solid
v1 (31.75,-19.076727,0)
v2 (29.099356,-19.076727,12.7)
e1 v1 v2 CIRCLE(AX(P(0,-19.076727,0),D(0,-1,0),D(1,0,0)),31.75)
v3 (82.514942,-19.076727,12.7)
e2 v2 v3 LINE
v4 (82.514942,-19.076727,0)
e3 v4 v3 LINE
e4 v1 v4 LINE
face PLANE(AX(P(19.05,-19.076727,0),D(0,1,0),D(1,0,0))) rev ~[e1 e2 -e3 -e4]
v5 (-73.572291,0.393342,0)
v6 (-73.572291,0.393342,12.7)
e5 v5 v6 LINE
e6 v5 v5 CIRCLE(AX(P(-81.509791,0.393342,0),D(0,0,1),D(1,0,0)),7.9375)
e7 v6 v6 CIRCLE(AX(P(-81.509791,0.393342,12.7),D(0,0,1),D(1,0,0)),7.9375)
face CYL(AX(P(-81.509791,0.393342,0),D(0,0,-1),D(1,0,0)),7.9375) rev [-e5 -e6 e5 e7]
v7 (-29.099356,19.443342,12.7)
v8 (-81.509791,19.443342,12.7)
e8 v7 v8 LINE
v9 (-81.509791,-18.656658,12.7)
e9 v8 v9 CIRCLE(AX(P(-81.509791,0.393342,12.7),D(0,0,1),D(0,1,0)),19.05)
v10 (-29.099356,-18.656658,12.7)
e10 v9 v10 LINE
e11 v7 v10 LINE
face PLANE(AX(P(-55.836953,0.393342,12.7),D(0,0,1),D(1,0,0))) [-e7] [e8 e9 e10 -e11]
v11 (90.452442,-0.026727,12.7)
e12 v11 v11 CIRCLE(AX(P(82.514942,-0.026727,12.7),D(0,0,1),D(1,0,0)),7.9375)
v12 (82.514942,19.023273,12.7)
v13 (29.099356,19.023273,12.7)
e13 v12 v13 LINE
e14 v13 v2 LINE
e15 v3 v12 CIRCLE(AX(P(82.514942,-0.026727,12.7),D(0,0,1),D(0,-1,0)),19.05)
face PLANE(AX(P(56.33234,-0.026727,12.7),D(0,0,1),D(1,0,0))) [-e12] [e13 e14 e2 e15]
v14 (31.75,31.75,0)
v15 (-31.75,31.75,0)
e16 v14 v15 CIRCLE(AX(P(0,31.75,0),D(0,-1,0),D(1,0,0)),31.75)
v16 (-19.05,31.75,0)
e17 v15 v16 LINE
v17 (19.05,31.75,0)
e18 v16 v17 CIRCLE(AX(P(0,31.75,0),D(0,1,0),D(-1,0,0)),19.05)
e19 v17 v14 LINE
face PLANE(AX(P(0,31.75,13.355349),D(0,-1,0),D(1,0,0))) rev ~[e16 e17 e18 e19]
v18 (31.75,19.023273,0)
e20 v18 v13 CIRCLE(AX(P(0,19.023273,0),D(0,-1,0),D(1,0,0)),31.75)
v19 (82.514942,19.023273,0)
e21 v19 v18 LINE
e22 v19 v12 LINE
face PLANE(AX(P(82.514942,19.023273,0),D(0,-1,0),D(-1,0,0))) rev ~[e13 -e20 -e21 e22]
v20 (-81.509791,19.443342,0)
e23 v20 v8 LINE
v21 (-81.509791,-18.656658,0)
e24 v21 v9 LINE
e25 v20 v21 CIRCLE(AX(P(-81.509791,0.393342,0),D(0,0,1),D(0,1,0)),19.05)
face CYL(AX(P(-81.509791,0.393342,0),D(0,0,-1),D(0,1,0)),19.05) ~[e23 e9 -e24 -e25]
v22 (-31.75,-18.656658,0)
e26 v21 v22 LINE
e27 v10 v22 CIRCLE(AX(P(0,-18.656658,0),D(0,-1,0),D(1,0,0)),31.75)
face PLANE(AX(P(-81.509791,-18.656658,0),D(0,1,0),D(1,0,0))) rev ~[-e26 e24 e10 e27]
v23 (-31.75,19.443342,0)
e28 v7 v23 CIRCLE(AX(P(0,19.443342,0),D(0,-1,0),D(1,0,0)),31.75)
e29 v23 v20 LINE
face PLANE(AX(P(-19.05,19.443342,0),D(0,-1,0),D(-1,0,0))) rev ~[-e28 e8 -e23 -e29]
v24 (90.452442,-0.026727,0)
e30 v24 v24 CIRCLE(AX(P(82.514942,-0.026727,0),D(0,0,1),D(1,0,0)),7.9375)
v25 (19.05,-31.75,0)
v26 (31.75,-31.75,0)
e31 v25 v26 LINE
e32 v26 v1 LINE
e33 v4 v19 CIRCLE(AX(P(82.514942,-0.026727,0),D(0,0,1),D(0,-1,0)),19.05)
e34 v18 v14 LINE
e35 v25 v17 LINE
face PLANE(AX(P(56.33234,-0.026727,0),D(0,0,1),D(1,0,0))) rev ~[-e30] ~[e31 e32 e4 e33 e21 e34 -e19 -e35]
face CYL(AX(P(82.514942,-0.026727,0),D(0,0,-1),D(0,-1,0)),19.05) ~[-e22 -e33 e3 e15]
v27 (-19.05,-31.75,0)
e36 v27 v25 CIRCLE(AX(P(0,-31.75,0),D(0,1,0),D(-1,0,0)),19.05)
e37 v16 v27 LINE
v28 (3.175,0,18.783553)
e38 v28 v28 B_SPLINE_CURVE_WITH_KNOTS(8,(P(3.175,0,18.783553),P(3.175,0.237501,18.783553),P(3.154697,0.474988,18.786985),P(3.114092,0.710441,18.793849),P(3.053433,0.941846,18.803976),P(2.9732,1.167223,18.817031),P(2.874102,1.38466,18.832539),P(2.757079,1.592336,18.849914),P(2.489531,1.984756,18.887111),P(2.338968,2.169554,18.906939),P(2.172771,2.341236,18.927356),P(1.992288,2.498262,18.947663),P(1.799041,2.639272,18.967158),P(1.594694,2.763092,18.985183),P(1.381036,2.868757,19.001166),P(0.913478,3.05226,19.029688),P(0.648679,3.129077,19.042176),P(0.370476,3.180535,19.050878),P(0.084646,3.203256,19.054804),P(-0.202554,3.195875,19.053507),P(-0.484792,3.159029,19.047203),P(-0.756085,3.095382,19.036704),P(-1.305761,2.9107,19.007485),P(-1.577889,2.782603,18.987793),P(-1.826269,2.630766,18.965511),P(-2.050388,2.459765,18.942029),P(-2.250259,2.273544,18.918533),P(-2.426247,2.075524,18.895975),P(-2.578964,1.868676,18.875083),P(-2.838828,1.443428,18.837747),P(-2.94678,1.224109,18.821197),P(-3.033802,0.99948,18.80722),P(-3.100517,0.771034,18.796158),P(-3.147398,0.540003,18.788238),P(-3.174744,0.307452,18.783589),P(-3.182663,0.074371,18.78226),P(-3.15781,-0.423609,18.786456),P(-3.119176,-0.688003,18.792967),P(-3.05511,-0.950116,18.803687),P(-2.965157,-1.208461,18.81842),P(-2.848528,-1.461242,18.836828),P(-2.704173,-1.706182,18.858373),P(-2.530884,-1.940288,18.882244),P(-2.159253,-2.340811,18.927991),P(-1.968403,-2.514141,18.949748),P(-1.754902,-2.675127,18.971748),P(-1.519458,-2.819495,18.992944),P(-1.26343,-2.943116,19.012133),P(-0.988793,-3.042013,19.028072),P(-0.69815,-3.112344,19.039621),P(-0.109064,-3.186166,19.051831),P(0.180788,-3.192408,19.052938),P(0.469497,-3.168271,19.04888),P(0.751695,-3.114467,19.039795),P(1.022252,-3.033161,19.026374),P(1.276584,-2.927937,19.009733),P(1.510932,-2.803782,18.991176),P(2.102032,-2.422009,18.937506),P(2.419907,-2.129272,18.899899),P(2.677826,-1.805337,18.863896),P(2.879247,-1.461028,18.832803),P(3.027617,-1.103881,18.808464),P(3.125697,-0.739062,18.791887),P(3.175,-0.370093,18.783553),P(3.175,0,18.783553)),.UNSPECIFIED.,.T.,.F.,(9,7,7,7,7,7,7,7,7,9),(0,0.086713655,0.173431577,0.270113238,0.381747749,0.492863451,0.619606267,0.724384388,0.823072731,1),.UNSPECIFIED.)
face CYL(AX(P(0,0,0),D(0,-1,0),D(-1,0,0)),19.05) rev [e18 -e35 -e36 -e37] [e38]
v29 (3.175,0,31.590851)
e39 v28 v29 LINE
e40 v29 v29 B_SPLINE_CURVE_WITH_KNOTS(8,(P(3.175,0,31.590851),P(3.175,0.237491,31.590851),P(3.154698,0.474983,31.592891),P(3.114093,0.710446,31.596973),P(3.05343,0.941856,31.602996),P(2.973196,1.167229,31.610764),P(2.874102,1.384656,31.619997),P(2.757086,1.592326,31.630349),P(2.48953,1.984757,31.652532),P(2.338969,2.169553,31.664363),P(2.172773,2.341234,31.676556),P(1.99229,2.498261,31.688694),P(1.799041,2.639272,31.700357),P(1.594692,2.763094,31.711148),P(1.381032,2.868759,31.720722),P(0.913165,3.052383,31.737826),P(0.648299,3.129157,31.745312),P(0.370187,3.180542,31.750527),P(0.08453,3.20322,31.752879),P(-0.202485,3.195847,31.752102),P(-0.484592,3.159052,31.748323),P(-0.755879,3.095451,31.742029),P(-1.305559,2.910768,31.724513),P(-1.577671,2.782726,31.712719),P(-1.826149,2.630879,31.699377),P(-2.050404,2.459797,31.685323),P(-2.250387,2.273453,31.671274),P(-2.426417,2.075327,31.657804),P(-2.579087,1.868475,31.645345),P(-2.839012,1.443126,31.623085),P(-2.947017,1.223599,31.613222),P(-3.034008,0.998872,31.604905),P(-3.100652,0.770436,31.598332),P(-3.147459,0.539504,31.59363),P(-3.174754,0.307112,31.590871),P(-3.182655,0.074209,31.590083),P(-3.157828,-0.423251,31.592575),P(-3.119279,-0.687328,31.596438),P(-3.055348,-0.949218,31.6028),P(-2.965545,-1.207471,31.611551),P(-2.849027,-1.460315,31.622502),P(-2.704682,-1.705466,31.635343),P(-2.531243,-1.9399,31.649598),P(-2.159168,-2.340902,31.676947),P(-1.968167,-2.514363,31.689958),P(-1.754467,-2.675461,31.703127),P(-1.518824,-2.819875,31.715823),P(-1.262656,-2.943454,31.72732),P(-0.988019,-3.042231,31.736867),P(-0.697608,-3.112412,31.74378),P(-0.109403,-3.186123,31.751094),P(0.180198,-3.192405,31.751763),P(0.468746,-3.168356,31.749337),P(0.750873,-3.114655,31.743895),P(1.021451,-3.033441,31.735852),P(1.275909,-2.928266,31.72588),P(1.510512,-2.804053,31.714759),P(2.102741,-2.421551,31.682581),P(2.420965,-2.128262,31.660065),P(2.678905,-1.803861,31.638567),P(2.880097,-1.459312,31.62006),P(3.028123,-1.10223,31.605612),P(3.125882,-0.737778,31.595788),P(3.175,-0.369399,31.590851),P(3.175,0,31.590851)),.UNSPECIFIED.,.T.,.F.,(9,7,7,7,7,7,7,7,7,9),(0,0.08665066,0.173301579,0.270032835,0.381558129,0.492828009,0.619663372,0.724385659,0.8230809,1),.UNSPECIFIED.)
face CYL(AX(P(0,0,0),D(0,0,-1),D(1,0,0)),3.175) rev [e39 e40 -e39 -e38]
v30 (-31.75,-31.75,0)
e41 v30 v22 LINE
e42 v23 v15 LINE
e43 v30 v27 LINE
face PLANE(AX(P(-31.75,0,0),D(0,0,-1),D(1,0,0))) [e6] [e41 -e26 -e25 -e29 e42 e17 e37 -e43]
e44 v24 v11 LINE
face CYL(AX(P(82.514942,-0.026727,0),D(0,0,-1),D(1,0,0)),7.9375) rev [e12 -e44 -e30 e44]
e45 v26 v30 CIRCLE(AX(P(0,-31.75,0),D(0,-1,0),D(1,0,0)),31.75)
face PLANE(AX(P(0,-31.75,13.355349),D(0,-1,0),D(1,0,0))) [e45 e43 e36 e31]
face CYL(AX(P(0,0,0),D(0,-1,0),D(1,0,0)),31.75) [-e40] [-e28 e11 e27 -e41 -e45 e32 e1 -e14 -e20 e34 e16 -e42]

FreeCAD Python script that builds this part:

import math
import FreeCAD as App
import Part
import Sketcher

V = App.Vector
Q = App.Units.Quantity

doc = App.newDocument("Part")
body = doc.addObject("PartDesign::Body", "Body")

sketch1 = body.newObject("Sketcher::SketchObject", "Sketch")
sketch1.AttachmentSupport = (doc.getObject("XZ_Plane"), [""])
sketch1.MapMode = "FlatFace"
sketch1.addGeometry([
    Part.LineSegment(V(-32, 0, 0), V(-19, 0, 0)),
    Part.ArcOfCircle(Part.Circle(V(0, 0, 0), V(0, 0, 1), 19), math.radians(0), math.radians(180)),
    Part.LineSegment(V(19, 0, 0), V(32, 0, 0)),
    Part.ArcOfCircle(Part.Circle(V(0, 0, 0), V(0, 0, 1), 32), math.radians(0), math.radians(180)),
], False)
sketch1.addConstraint([
    Sketcher.Constraint("Coincident", 0, 2, 1, 2),
    Sketcher.Constraint("Coincident", 1, 1, 2, 1),
    Sketcher.Constraint("Coincident", 2, 2, 3, 1),
    Sketcher.Constraint("Coincident", 3, 2, 0, 1),
    Sketcher.Constraint("Horizontal", 0),
    Sketcher.Constraint("Horizontal", 2),
    Sketcher.Constraint("Coincident", 1, 3, -1, 1),
    Sketcher.Constraint("Coincident", 3, 3, -1, 1),
    Sketcher.Constraint("PointOnObject", 0, 2, -1),
    Sketcher.Constraint("PointOnObject", 1, 1, -1),
    Sketcher.Constraint("Radius", 1, Q("0.75 in")),
    Sketcher.Constraint("Radius", 3, Q("1.25 in")),
])
pad1 = body.newObject("PartDesign::Pad", "Pad")
pad1.Profile = sketch1
pad1.Length = Q("2.5 in")
pad1.Midplane = True

sketch2 = body.newObject("Sketcher::SketchObject", "Sketch001")
sketch2.AttachmentSupport = (doc.getObject("XY_Plane"), [""])
sketch2.MapMode = "FlatFace"
sketch2.addGeometry(Part.Circle(V(0, 0, 0), V(0, 0, 1), 3.2), False)
sketch2.addConstraint([
    Sketcher.Constraint("Coincident", 0, 3, -1, 1),
    Sketcher.Constraint("Diameter", 0, Q("0.25 in")),
])
pocket1 = body.newObject("PartDesign::Pocket", "Pocket")
pocket1.Profile = sketch2
pocket1.Length = Q("1.63 in")
pocket1.Reversed = True

sketch3 = body.newObject("Sketcher::SketchObject", "Sketch002")
sketch3.AttachmentSupport = (doc.getObject("XY_Plane"), [""])
sketch3.MapMode = "FlatFace"
sketch3.addGeometry([
    Part.ArcOfCircle(Part.Circle(V(83, 0, 0), V(0, 0, 1), 19), math.radians(-90), math.radians(90)),
    Part.LineSegment(V(83, 19, 0), V(19, 19, 0)),
    Part.LineSegment(V(19, 19, 0), V(19, -19, 0)),
    Part.LineSegment(V(19, -19, 0), V(83, -19, 0)),
    Part.Circle(V(83, 0, 0), V(0, 0, 1), 8),
    Part.LineSegment(V(-19, 19, 0), V(-82, 19, 0)),
    Part.ArcOfCircle(Part.Circle(V(-82, 0, 0), V(0, 0, 1), 19), math.radians(90), math.radians(270)),
    Part.LineSegment(V(-82, -19, 0), V(-19, -19, 0)),
    Part.LineSegment(V(-19, -19, 0), V(-19, 19, 0)),
    Part.Circle(V(-82, 0, 0), V(0, 0, 1), 8),
], False)
sketch3.addConstraint([
    Sketcher.Constraint("Tangent", 0, 2, 1, 1),
    Sketcher.Constraint("Coincident", 1, 2, 2, 1),
    Sketcher.Constraint("Coincident", 2, 2, 3, 1),
    Sketcher.Constraint("Tangent", 3, 2, 0, 1),
    Sketcher.Constraint("Tangent", 5, 2, 6, 1),
    Sketcher.Constraint("Tangent", 6, 2, 7, 1),
    Sketcher.Constraint("Coincident", 7, 2, 8, 1),
    Sketcher.Constraint("Coincident", 8, 2, 5, 1),
    Sketcher.Constraint("Horizontal", 1),
    Sketcher.Constraint("Vertical", 2),
    Sketcher.Constraint("Horizontal", 3),
    Sketcher.Constraint("Horizontal", 5),
    Sketcher.Constraint("Horizontal", 7),
    Sketcher.Constraint("Vertical", 8),
    Sketcher.Constraint("Coincident", 4, 3, 0, 3),
    Sketcher.Constraint("Coincident", 9, 3, 6, 3),
    Sketcher.Constraint("Equal", 0, 6),
    Sketcher.Constraint("Equal", 4, 9),
    Sketcher.Constraint("Radius", 0, Q("0.75 in")),
    Sketcher.Constraint("Diameter", 4, Q("0.625 in")),
    Sketcher.Constraint("DistanceX", 7, 2, 2, 2, Q("1.5 in")),
    Sketcher.Constraint("DistanceX", -1, 1, 1, 2, Q("0.75 in")),
    Sketcher.Constraint("DistanceX", 5, 2, 5, 1, 62.459791),
    Sketcher.Constraint("DistanceX", 1, 2, 1, 1, 63.464942),
    Sketcher.Constraint("DistanceY", 6, 2, -1, 1, 18.656658),
    Sketcher.Constraint("DistanceY", 0, 3, 6, 3, 0.420069),
])
pad2 = body.newObject("PartDesign::Pad", "Pad001")
pad2.Profile = sketch3
pad2.Length = Q("0.5 in")

doc.recompute()
